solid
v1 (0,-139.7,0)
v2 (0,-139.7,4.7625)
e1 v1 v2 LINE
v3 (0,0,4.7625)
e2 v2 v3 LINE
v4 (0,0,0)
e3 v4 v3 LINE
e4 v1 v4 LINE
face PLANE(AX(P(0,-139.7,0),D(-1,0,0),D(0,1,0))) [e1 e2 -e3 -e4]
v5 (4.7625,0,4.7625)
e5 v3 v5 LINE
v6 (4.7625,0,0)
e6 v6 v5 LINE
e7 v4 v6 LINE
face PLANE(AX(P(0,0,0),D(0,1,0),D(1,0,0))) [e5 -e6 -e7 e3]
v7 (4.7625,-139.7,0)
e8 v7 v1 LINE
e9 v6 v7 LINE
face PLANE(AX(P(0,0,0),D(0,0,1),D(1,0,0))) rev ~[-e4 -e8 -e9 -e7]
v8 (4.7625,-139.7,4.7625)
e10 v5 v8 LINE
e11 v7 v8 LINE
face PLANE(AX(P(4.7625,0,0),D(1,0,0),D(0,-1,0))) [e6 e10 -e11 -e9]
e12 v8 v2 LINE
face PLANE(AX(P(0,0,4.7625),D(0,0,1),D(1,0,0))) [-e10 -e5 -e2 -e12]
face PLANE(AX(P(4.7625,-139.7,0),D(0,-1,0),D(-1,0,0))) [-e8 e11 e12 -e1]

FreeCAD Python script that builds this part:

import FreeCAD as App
import Part
import Sketcher
from FreeCAD import Vector
Q = App.Units.Quantity


def add_polygon(sketch, points):
    """Adds a closed chain of lines whose ends are joined by coincident constraints."""
    first, n = sketch.GeometryCount, len(points)
    for a, b in zip(points, points[1:] + points[:1]):
        sketch.addGeometry(Part.LineSegment(App.Vector(*a, 0), App.Vector(*b, 0)), False)
    for i in range(n):
        sketch.addConstraint(Sketcher.Constraint("Coincident", first + i, 2, first + (i + 1) % n, 1))

doc = App.newDocument("Part")
body = doc.addObject("PartDesign::Body", "Body")

# Sketch on XY plane
sketch1 = doc.addObject("Sketcher::SketchObject", "Sketch")
body.addObject(sketch1)
sketch1.AttachmentSupport = (doc.XY_Plane, [""])
sketch1.MapMode = "FlatFace"
add_polygon(sketch1, [(4.8, 0), (0, 0), (0, -139.7), (4.8, -139.7)])  # lines 0-3
sketch1.addConstraint(Sketcher.Constraint("Horizontal", 0))
sketch1.addConstraint(Sketcher.Constraint("Vertical", 1))
sketch1.addConstraint(Sketcher.Constraint("Horizontal", 2))
sketch1.addConstraint(Sketcher.Constraint("Vertical", 3))
sketch1.addConstraint(Sketcher.Constraint("Coincident", 0, 2, -1, 1))
sketch1.addConstraint(Sketcher.Constraint("DistanceY", 1, 2, 1, 1, Q("5.5 in")))
sketch1.addConstraint(Sketcher.Constraint("DistanceX", 0, 2, 0, 1, Q("0.1875 in")))
pad1 = doc.addObject("PartDesign::Pad", "Pad")
body.addObject(pad1)
pad1.Profile = sketch1
pad1.Length = Q("0.1875 in")

doc.recompute()
